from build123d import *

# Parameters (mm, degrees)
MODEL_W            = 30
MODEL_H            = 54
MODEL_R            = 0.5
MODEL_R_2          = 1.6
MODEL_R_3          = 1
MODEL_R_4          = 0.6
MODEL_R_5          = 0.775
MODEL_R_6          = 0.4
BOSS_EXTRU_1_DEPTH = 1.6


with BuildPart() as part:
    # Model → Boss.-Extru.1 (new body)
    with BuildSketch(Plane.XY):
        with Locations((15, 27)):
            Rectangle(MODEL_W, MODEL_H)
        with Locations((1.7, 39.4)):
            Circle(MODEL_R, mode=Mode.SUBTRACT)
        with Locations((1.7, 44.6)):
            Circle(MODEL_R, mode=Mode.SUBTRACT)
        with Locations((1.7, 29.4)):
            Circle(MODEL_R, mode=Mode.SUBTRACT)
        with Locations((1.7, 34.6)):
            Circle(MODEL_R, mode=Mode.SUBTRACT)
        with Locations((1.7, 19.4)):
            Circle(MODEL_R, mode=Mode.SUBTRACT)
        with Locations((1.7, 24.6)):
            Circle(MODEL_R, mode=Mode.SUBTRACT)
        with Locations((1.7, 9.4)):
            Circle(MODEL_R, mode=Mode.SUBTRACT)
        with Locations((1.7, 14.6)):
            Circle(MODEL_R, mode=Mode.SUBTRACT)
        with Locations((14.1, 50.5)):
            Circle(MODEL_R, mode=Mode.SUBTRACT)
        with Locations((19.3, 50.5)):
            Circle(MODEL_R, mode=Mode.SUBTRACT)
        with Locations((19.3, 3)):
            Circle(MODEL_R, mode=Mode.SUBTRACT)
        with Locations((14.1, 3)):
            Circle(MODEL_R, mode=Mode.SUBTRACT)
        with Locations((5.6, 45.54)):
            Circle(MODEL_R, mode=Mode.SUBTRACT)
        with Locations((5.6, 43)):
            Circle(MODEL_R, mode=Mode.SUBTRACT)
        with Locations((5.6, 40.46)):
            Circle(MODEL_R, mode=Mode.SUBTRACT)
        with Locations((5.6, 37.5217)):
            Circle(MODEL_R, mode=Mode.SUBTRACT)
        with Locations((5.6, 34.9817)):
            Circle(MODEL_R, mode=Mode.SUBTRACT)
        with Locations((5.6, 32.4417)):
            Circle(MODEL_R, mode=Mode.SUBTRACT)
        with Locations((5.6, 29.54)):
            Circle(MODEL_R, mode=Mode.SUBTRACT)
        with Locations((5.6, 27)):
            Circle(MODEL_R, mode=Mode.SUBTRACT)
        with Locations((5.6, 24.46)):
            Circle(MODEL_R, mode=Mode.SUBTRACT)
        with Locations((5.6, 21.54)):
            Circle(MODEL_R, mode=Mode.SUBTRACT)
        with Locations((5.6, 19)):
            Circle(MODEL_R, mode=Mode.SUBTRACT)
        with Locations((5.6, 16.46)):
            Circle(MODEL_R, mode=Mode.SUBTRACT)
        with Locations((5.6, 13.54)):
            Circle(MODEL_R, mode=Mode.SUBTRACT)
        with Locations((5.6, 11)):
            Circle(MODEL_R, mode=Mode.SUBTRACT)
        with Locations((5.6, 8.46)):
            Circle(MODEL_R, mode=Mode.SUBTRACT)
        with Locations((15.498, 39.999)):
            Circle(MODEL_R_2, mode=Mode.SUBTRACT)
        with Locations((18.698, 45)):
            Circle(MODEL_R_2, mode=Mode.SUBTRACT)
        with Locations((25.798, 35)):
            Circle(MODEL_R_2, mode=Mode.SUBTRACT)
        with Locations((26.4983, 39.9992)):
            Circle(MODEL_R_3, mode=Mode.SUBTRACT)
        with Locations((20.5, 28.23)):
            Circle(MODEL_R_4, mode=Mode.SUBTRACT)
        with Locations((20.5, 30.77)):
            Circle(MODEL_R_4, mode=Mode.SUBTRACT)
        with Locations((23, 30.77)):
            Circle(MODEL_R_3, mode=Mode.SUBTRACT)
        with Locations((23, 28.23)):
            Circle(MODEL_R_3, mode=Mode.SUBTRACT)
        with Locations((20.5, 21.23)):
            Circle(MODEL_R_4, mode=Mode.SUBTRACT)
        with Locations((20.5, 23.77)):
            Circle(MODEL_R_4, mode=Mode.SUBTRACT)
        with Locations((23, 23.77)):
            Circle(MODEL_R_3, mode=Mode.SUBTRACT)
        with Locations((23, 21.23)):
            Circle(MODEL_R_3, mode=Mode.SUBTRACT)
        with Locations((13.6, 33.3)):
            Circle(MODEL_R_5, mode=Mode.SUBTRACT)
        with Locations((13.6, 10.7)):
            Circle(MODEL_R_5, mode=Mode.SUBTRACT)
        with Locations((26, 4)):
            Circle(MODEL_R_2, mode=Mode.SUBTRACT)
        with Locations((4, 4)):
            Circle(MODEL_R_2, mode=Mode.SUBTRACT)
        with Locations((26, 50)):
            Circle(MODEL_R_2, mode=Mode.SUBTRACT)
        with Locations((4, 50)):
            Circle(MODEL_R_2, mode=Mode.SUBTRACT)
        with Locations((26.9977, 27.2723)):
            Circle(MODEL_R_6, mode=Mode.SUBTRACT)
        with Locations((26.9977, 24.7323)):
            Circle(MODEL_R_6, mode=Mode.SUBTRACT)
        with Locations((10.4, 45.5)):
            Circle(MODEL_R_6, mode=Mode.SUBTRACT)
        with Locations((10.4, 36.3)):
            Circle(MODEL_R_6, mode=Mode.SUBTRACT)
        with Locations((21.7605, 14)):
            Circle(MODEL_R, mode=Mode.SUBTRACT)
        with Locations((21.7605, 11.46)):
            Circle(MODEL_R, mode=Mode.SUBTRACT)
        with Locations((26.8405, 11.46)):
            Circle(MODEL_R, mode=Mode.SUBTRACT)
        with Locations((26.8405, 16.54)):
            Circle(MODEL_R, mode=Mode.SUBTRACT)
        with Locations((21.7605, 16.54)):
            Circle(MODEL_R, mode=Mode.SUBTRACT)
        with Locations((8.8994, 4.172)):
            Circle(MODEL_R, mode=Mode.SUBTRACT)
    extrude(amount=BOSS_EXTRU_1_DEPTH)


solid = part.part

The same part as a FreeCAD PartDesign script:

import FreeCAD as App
import Part
import Sketcher

V = App.Vector


def add_polygon(sketch, points):
    """Adds a closed chain of lines whose ends are joined by coincident constraints."""
    first, n = sketch.GeometryCount, len(points)
    for a, b in zip(points, points[1:] + points[:1]):
        sketch.addGeometry(Part.LineSegment(App.Vector(*a, 0), App.Vector(*b, 0)), False)
    for i in range(n):
        sketch.addConstraint(Sketcher.Constraint("Coincident", first + i, 2, first + (i + 1) % n, 1))

doc = App.newDocument("Part")
params = doc.addObject("Spreadsheet::Sheet", "Params")
for row, (alias, value) in enumerate([
    ("sketch1_diameter", "1 mm"),
    ("sketch1_diameter2", "2 mm"),
    ("sketch1_diameter3", "3.2 mm"),
    ("sketch1_diameter4", "1.2 mm"),
    ("sketch1_diameter5", "0.8 mm"),
    ("pad1_length", "1.6 mm"),
], start=1):
    params.set(f"A{row}", alias)
    params.set(f"B{row}", "=" + value)
    params.setAlias(f"B{row}", alias)

body = doc.addObject("PartDesign::Body", "Body")

sketch1 = body.newObject("Sketcher::SketchObject", "Sketch")
sketch1.AttachmentSupport = (doc.getObject("XY_Plane"), [""])
sketch1.MapMode = "FlatFace"
add_polygon(sketch1, [(0, 54), (0, 0), (30, 0), (30, 54)])
sketch1.addGeometry(Part.Circle(V(4, 4, 0), V(0, 0, 1), 1.6), False)
sketch1.addGeometry(Part.Circle(V(5.6, 8.46, 0), V(0, 0, 1), 0.5), False)
sketch1.addGeometry(Part.Circle(V(1.7, 9.4, 0), V(0, 0, 1), 0.5), False)
sketch1.addGeometry(Part.Circle(V(1.7, 14.6, 0), V(0, 0, 1), 0.5), False)
sketch1.addGeometry(Part.Circle(V(5.6, 11, 0), V(0, 0, 1), 0.5), False)
sketch1.addGeometry(Part.Circle(V(5.6, 13.54, 0), V(0, 0, 1), 0.5), False)
sketch1.addGeometry(Part.Circle(V(8.9, 4.17, 0), V(0, 0, 1), 0.5), False)
sketch1.addGeometry(Part.Circle(V(14.1, 3, 0), V(0, 0, 1), 0.5), False)
sketch1.addGeometry(Part.Circle(V(13.6, 10.7, 0), V(0, 0, 1), 0.78), False)
sketch1.addGeometry(Part.Circle(V(1.7, 19.4, 0), V(0, 0, 1), 0.5), False)
sketch1.addGeometry(Part.Circle(V(5.6, 16.46, 0), V(0, 0, 1), 0.5), False)
sketch1.addGeometry(Part.Circle(V(5.6, 19, 0), V(0, 0, 1), 0.5), False)
sketch1.addGeometry(Part.Circle(V(1.7, 24.6, 0), V(0, 0, 1), 0.5), False)
sketch1.addGeometry(Part.Circle(V(5.6, 21.54, 0), V(0, 0, 1), 0.5), False)
sketch1.addGeometry(Part.Circle(V(5.6, 24.46, 0), V(0, 0, 1), 0.5), False)
sketch1.addGeometry(Part.Circle(V(19.3, 3, 0), V(0, 0, 1), 0.5), False)
sketch1.addGeometry(Part.Circle(V(26, 4, 0), V(0, 0, 1), 1.6), False)
sketch1.addGeometry(Part.Circle(V(21.76, 11.46, 0), V(0, 0, 1), 0.5), False)
sketch1.addGeometry(Part.Circle(V(21.76, 14, 0), V(0, 0, 1), 0.5), False)
sketch1.addGeometry(Part.Circle(V(26.84, 11.46, 0), V(0, 0, 1), 0.5), False)
sketch1.addGeometry(Part.Circle(V(20.5, 21.23, 0), V(0, 0, 1), 0.6), False)
sketch1.addGeometry(Part.Circle(V(20.5, 23.77, 0), V(0, 0, 1), 0.6), False)
sketch1.addGeometry(Part.Circle(V(21.76, 16.54, 0), V(0, 0, 1), 0.5), False)
sketch1.addGeometry(Part.Circle(V(26.84, 16.54, 0), V(0, 0, 1), 0.5), False)
sketch1.addGeometry(Part.Circle(V(23, 21.23, 0), V(0, 0, 1), 1), False)
sketch1.addGeometry(Part.Circle(V(23, 23.77, 0), V(0, 0, 1), 1), False)
sketch1.addGeometry(Part.Circle(V(27, 24.73, 0), V(0, 0, 1), 0.4), False)
sketch1.addGeometry(Part.Circle(V(1.7, 29.4, 0), V(0, 0, 1), 0.5), False)
sketch1.addGeometry(Part.Circle(V(5.6, 27, 0), V(0, 0, 1), 0.5), False)
sketch1.addGeometry(Part.Circle(V(5.6, 29.54, 0), V(0, 0, 1), 0.5), False)
sketch1.addGeometry(Part.Circle(V(5.6, 32.44, 0), V(0, 0, 1), 0.5), False)
sketch1.addGeometry(Part.Circle(V(1.7, 34.6, 0), V(0, 0, 1), 0.5), False)
sketch1.addGeometry(Part.Circle(V(5.6, 34.98, 0), V(0, 0, 1), 0.5), False)
sketch1.addGeometry(Part.Circle(V(5.6, 37.52, 0), V(0, 0, 1), 0.5), False)
sketch1.addGeometry(Part.Circle(V(10.4, 36.3, 0), V(0, 0, 1), 0.4), False)
sketch1.addGeometry(Part.Circle(V(13.6, 33.3, 0), V(0, 0, 1), 0.78), False)
sketch1.addGeometry(Part.Circle(V(1.7, 39.4, 0), V(0, 0, 1), 0.5), False)
sketch1.addGeometry(Part.Circle(V(1.7, 44.6, 0), V(0, 0, 1), 0.5), False)
sketch1.addGeometry(Part.Circle(V(5.6, 40.46, 0), V(0, 0, 1), 0.5), False)
sketch1.addGeometry(Part.Circle(V(5.6, 43, 0), V(0, 0, 1), 0.5), False)
sketch1.addGeometry(Part.Circle(V(4, 50, 0), V(0, 0, 1), 1.6), False)
sketch1.addGeometry(Part.Circle(V(5.6, 45.54, 0), V(0, 0, 1), 0.5), False)
sketch1.addGeometry(Part.Circle(V(10.4, 45.5, 0), V(0, 0, 1), 0.4), False)
sketch1.addGeometry(Part.Circle(V(14.1, 50.5, 0), V(0, 0, 1), 0.5), False)
sketch1.addGeometry(Part.Circle(V(20.5, 28.23, 0), V(0, 0, 1), 0.6), False)
sketch1.addGeometry(Part.Circle(V(20.5, 30.77, 0), V(0, 0, 1), 0.6), False)
sketch1.addGeometry(Part.Circle(V(23, 28.23, 0), V(0, 0, 1), 1), False)
sketch1.addGeometry(Part.Circle(V(23, 30.77, 0), V(0, 0, 1), 1), False)
sketch1.addGeometry(Part.Circle(V(27, 27.27, 0), V(0, 0, 1), 0.4), False)
sketch1.addGeometry(Part.Circle(V(25.8, 35, 0), V(0, 0, 1), 1.6), False)
sketch1.addGeometry(Part.Circle(V(15.5, 40, 0), V(0, 0, 1), 1.6), False)
sketch1.addGeometry(Part.Circle(V(18.7, 45, 0), V(0, 0, 1), 1.6), False)
sketch1.addGeometry(Part.Circle(V(19.3, 50.5, 0), V(0, 0, 1), 0.5), False)
sketch1.addGeometry(Part.Circle(V(26.5, 40, 0), V(0, 0, 1), 1), False)
sketch1.addGeometry(Part.Circle(V(26, 50, 0), V(0, 0, 1), 1.6), False)
sketch1.addConstraint(Sketcher.Constraint("Vertical", 0))
sketch1.addConstraint(Sketcher.Constraint("Horizontal", 1))
sketch1.addConstraint(Sketcher.Constraint("Vertical", 2))
sketch1.addConstraint(Sketcher.Constraint("Horizontal", 3))
sketch1.addConstraint(Sketcher.Constraint("Coincident", 0, 2, -1, 1))
sketch1.addConstraint(Sketcher.Constraint("Equal", 5, 6))
sketch1.addConstraint(Sketcher.Constraint("Equal", 6, 7))
sketch1.addConstraint(Sketcher.Constraint("Equal", 7, 8))
sketch1.addConstraint(Sketcher.Constraint("Equal", 8, 9))
sketch1.addConstraint(Sketcher.Constraint("Equal", 9, 10))
sketch1.addConstraint(Sketcher.Constraint("Equal", 10, 11))
sketch1.addConstraint(Sketcher.Constraint("Equal", 11, 13))
sketch1.addConstraint(Sketcher.Constraint("Equal", 13, 14))
sketch1.addConstraint(Sketcher.Constraint("Equal", 14, 15))
sketch1.addConstraint(Sketcher.Constraint("Equal", 15, 16))
sketch1.addConstraint(Sketcher.Constraint("Equal", 16, 17))
sketch1.addConstraint(Sketcher.Constraint("Equal", 17, 18))
sketch1.addConstraint(Sketcher.Constraint("Equal", 18, 19))
sketch1.addConstraint(Sketcher.Constraint("Equal", 4, 20))
sketch1.addConstraint(Sketcher.Constraint("Equal", 19, 21))
sketch1.addConstraint(Sketcher.Constraint("Equal", 21, 22))
sketch1.addConstraint(Sketcher.Constraint("Equal", 22, 23))
sketch1.addConstraint(Sketcher.Constraint("Equal", 24, 25))
sketch1.addConstraint(Sketcher.Constraint("Equal", 23, 26))
sketch1.addConstraint(Sketcher.Constraint("Equal", 26, 27))
sketch1.addConstraint(Sketcher.Constraint("Equal", 28, 29))
sketch1.addConstraint(Sketcher.Constraint("Equal", 27, 31))
sketch1.addConstraint(Sketcher.Constraint("Equal", 31, 32))
sketch1.addConstraint(Sketcher.Constraint("Equal", 32, 33))
sketch1.addConstraint(Sketcher.Constraint("Equal", 33, 34))
sketch1.addConstraint(Sketcher.Constraint("Equal", 34, 35))
sketch1.addConstraint(Sketcher.Constraint("Equal", 35, 36))
sketch1.addConstraint(Sketcher.Constraint("Equal", 36, 37))
sketch1.addConstraint(Sketcher.Constraint("Equal", 30, 38))
sketch1.addConstraint(Sketcher.Constraint("Equal", 12, 39))
sketch1.addConstraint(Sketcher.Constraint("Equal", 37, 40))
sketch1.addConstraint(Sketcher.Constraint("Equal", 40, 41))
sketch1.addConstraint(Sketcher.Constraint("Equal", 41, 42))
sketch1.addConstraint(Sketcher.Constraint("Equal", 42, 43))
sketch1.addConstraint(Sketcher.Constraint("Equal", 20, 44))
sketch1.addConstraint(Sketcher.Constraint("Equal", 43, 45))
sketch1.addConstraint(Sketcher.Constraint("Equal", 38, 46))
sketch1.addConstraint(Sketcher.Constraint("Equal", 45, 47))
sketch1.addConstraint(Sketcher.Constraint("Equal", 25, 48))
sketch1.addConstraint(Sketcher.Constraint("Equal", 48, 49))
sketch1.addConstraint(Sketcher.Constraint("Equal", 29, 50))
sketch1.addConstraint(Sketcher.Constraint("Equal", 50, 51))
sketch1.addConstraint(Sketcher.Constraint("Equal", 46, 52))
sketch1.addConstraint(Sketcher.Constraint("Equal", 44, 53))
sketch1.addConstraint(Sketcher.Constraint("Equal", 53, 54))
sketch1.addConstraint(Sketcher.Constraint("Equal", 54, 55))
sketch1.addConstraint(Sketcher.Constraint("Equal", 47, 56))
sketch1.addConstraint(Sketcher.Constraint("Equal", 51, 57))
sketch1.addConstraint(Sketcher.Constraint("Equal", 55, 58))
sketch1.addConstraint(Sketcher.Constraint("Horizontal", 11, 3, 19, 3))
sketch1.addConstraint(Sketcher.Constraint("Horizontal", 4, 3, 20, 3))
sketch1.addConstraint(Sketcher.Constraint("Horizontal", 21, 3, 23, 3))
sketch1.addConstraint(Sketcher.Constraint("Horizontal", 26, 3, 27, 3))
sketch1.addConstraint(Sketcher.Constraint("Horizontal", 24, 3, 28, 3))
sketch1.addConstraint(Sketcher.Constraint("Horizontal", 25, 3, 29, 3))
sketch1.addConstraint(Sketcher.Constraint("Horizontal", 48, 3, 50, 3))
sketch1.addConstraint(Sketcher.Constraint("Horizontal", 49, 3, 51, 3))
sketch1.addConstraint(Sketcher.Constraint("Horizontal", 47, 3, 56, 3))
sketch1.addConstraint(Sketcher.Constraint("Horizontal", 44, 3, 58, 3))
sketch1.addConstraint(Sketcher.Constraint("Vertical", 6, 3, 7, 3))
sketch1.addConstraint(Sketcher.Constraint("Vertical", 5, 3, 8, 3))
sketch1.addConstraint(Sketcher.Constraint("Vertical", 8, 3, 9, 3))
sketch1.addConstraint(Sketcher.Constraint("Vertical", 7, 3, 13, 3))
sketch1.addConstraint(Sketcher.Constraint("Vertical", 9, 3, 14, 3))
sketch1.addConstraint(Sketcher.Constraint("Vertical", 14, 3, 15, 3))
sketch1.addConstraint(Sketcher.Constraint("Vertical", 13, 3, 16, 3))
sketch1.addConstraint(Sketcher.Constraint("Vertical", 15, 3, 17, 3))
sketch1.addConstraint(Sketcher.Constraint("Vertical", 17, 3, 18, 3))
sketch1.addConstraint(Sketcher.Constraint("Vertical", 21, 3, 22, 3))
sketch1.addConstraint(Sketcher.Constraint("Vertical", 24, 3, 25, 3))
sketch1.addConstraint(Sketcher.Constraint("Vertical", 22, 3, 26, 3))
sketch1.addConstraint(Sketcher.Constraint("Vertical", 23, 3, 27, 3))
sketch1.addConstraint(Sketcher.Constraint("Vertical", 28, 3, 29, 3))
sketch1.addConstraint(Sketcher.Constraint("Vertical", 16, 3, 31, 3))
sketch1.addConstraint(Sketcher.Constraint("Vertical", 18, 3, 32, 3))
sketch1.addConstraint(Sketcher.Constraint("Vertical", 32, 3, 33, 3))
sketch1.addConstraint(Sketcher.Constraint("Vertical", 33, 3, 34, 3))
sketch1.addConstraint(Sketcher.Constraint("Vertical", 31, 3, 35, 3))
sketch1.addConstraint(Sketcher.Constraint("Vertical", 34, 3, 36, 3))
sketch1.addConstraint(Sketcher.Constraint("Vertical", 36, 3, 37, 3))
sketch1.addConstraint(Sketcher.Constraint("Vertical", 12, 3, 39, 3))
sketch1.addConstraint(Sketcher.Constraint("Vertical", 35, 3, 40, 3))
sketch1.addConstraint(Sketcher.Constraint("Vertical", 40, 3, 41, 3))
sketch1.addConstraint(Sketcher.Constraint("Vertical", 37, 3, 42, 3))
sketch1.addConstraint(Sketcher.Constraint("Vertical", 42, 3, 43, 3))
sketch1.addConstraint(Sketcher.Constraint("Vertical", 4, 3, 44, 3))
sketch1.addConstraint(Sketcher.Constraint("Vertical", 43, 3, 45, 3))
sketch1.addConstraint(Sketcher.Constraint("Vertical", 38, 3, 46, 3))
sketch1.addConstraint(Sketcher.Constraint("Vertical", 11, 3, 47, 3))
sketch1.addConstraint(Sketcher.Constraint("Vertical", 25, 3, 48, 3))
sketch1.addConstraint(Sketcher.Constraint("Vertical", 48, 3, 49, 3))
sketch1.addConstraint(Sketcher.Constraint("Vertical", 29, 3, 50, 3))
sketch1.addConstraint(Sketcher.Constraint("Vertical", 50, 3, 51, 3))
sketch1.addConstraint(Sketcher.Constraint("Vertical", 30, 3, 52, 3))
sketch1.addConstraint(Sketcher.Constraint("Vertical", 19, 3, 56, 3))
sketch1.addConstraint(Sketcher.Constraint("Vertical", 20, 3, 58, 3))
sketch1.addConstraint(Sketcher.Constraint("Diameter", 5, 1.0))
sketch1.addConstraint(Sketcher.Constraint("Diameter", 28, 2.0))
sketch1.addConstraint(Sketcher.Constraint("Diameter", 4, 3.2))
sketch1.addConstraint(Sketcher.Constraint("Diameter", 24, 1.2))
sketch1.addConstraint(Sketcher.Constraint("Diameter", 30, 0.8))
sketch1.addConstraint(Sketcher.Constraint("Diameter", 12, 1.55))
sketch1.addConstraint(Sketcher.Constraint("DistanceX", 1, 1, 1, 2, 30.0))
sketch1.addConstraint(Sketcher.Constraint("DistanceY", 0, 2, 0, 1, 54.0))
sketch1.addConstraint(Sketcher.Constraint("DistanceX", -1, 1, 4, 3, 4.0))
sketch1.addConstraint(Sketcher.Constraint("DistanceY", -1, 1, 4, 3, 4.0))
sketch1.addConstraint(Sketcher.Constraint("DistanceY", -1, 1, 8, 3, 11.0))
sketch1.addConstraint(Sketcher.Constraint("DistanceY", -1, 1, 11, 3, 3.0))
sketch1.addConstraint(Sketcher.Constraint("DistanceY", -1, 1, 15, 3, 19.0))
sketch1.addConstraint(Sketcher.Constraint("DistanceX", -1, 1, 20, 3, 26.0))
sketch1.addConstraint(Sketcher.Constraint("DistanceY", -1, 1, 22, 3, 14.0))
sketch1.addConstraint(Sketcher.Constraint("DistanceX", -1, 1, 28, 3, 23.0))
sketch1.addConstraint(Sketcher.Constraint("DistanceY", -1, 1, 32, 3, 27.0))
sketch1.addConstraint(Sketcher.Constraint("DistanceY", -1, 1, 43, 3, 43.0))
sketch1.addConstraint(Sketcher.Constraint("DistanceY", -1, 1, 44, 3, 50.0))
sketch1.addConstraint(Sketcher.Constraint("DistanceY", -1, 1, 53, 3, 35.0))
sketch1.addConstraint(Sketcher.Constraint("DistanceY", -1, 1, 55, 3, 45.0))
sketch1.addConstraint(Sketcher.Constraint("DistanceX", 8, 3, 12, 3, 8.0))
sketch1.addConstraint(Sketcher.Constraint("DistanceY", 6, 3, 13, 3, 10.0))
sketch1.addConstraint(Sketcher.Constraint("DistanceY", 5, 3, 14, 3, 8.0))
sketch1.addConstraint(Sketcher.Constraint("DistanceY", 7, 3, 16, 3, 10.0))
sketch1.addConstraint(Sketcher.Constraint("DistanceY", 14, 3, 18, 3, 8.0))
sketch1.addConstraint(Sketcher.Constraint("DistanceY", 13, 3, 31, 3, 10.0))
sketch1.addConstraint(Sketcher.Constraint("DistanceY", 17, 3, 33, 3, 8.0))
sketch1.addConstraint(Sketcher.Constraint("DistanceY", 16, 3, 35, 3, 10.0))
sketch1.addConstraint(Sketcher.Constraint("DistanceY", 39, 3, 38, 3, 3.0))
sketch1.addConstraint(Sketcher.Constraint("DistanceY", 35, 3, 41, 3, 10.0))
sketch1.addConstraint(Sketcher.Constraint("DistanceY", 46, 3, 47, 3, 5.0))
sketch1.addConstraint(Sketcher.Constraint("DistanceY", 24, 3, 48, 3, 7.0))
sketch1.addConstraint(Sketcher.Constraint("DistanceY", 25, 3, 49, 3, 7.0))
sketch1.addConstraint(Sketcher.Constraint("DistanceX", -1, 1, 5, 3, 5.6))
sketch1.addConstraint(Sketcher.Constraint("DistanceX", -1, 1, 6, 3, 1.7))
sketch1.addConstraint(Sketcher.Constraint("DistanceY", -1, 1, 6, 3, 9.4))
sketch1.addConstraint(Sketcher.Constraint("DistanceY", -1, 1, 7, 3, 14.6))
sketch1.addConstraint(Sketcher.Constraint("DistanceX", -1, 1, 11, 3, 14.1))
sketch1.addConstraint(Sketcher.Constraint("DistanceY", -1, 1, 12, 3, 10.7))
sketch1.addConstraint(Sketcher.Constraint("DistanceX", -1, 1, 19, 3, 19.3))
sketch1.addConstraint(Sketcher.Constraint("DistanceX", -1, 1, 24, 3, 20.5))
sketch1.addConstraint(Sketcher.Constraint("DistanceX", -1, 1, 38, 3, 10.4))
sketch1.addConstraint(Sketcher.Constraint("DistanceY", -1, 1, 38, 3, 36.3))
sketch1.addConstraint(Sketcher.Constraint("DistanceY", -1, 1, 40, 3, 39.4))
sketch1.addConstraint(Sketcher.Constraint("DistanceY", -1, 1, 46, 3, 45.5))
sketch1.addConstraint(Sketcher.Constraint("DistanceX", 54, 3, 55, 3, 3.2))
sketch1.addConstraint(Sketcher.Constraint("DistanceX", 55, 3, 53, 3, 7.1))
sketch1.addConstraint(Sketcher.Constraint("DistanceY", -1, 1, 5, 3, 8.46))
sketch1.addConstraint(Sketcher.Constraint("DistanceY", -1, 1, 9, 3, 13.54))
sketch1.addConstraint(Sketcher.Constraint("DistanceY", -1, 1, 17, 3, 21.54))
sketch1.addConstraint(Sketcher.Constraint("DistanceY", -1, 1, 21, 3, 11.46))
sketch1.addConstraint(Sketcher.Constraint("DistanceY", -1, 1, 24, 3, 21.23))
sketch1.addConstraint(Sketcher.Constraint("DistanceY", -1, 1, 25, 3, 23.77))
sketch1.addConstraint(Sketcher.Constraint("DistanceY", -1, 1, 26, 3, 16.54))
sketch1.addConstraint(Sketcher.Constraint("DistanceY", -1, 1, 42, 3, 40.46))
sketch1.addConstraint(Sketcher.Constraint("DistanceY", -1, 1, 45, 3, 45.54))
sketch1.addConstraint(Sketcher.Constraint("DistanceX", 21, 3, 23, 3, 5.08))
sketch1.addConstraint(Sketcher.Constraint("DistanceY", 34, 3, 36, 3, 2.54))
sketch1.addConstraint(Sketcher.Constraint("DistanceY", 36, 3, 37, 3, 2.54))
sketch1.addConstraint(Sketcher.Constraint("DistanceY", 30, 3, 52, 3, 2.54))
sketch1.addConstraint(Sketcher.Constraint("DistanceY", -1, 1, 10, 3, 4.172))
sketch1.addConstraint(Sketcher.Constraint("DistanceX", -1, 1, 53, 3, 25.798))
sketch1.addConstraint(Sketcher.Constraint("DistanceY", -1, 1, 54, 3, 39.999))
sketch1.addConstraint(Sketcher.Constraint("DistanceX", -1, 1, 10, 3, 8.8994))
sketch1.addConstraint(Sketcher.Constraint("DistanceX", -1, 1, 21, 3, 21.7605))
sketch1.addConstraint(Sketcher.Constraint("DistanceX", -1, 1, 30, 3, 26.9977))
sketch1.addConstraint(Sketcher.Constraint("DistanceY", -1, 1, 30, 3, 24.7323))
sketch1.addConstraint(Sketcher.Constraint("DistanceY", -1, 1, 34, 3, 32.4417))
sketch1.addConstraint(Sketcher.Constraint("DistanceX", -1, 1, 57, 3, 26.4983))
sketch1.addConstraint(Sketcher.Constraint("DistanceY", -1, 1, 57, 3, 39.9992))
sketch1.setExpression("Constraints[105]", "Params.sketch1_diameter")
sketch1.setExpression("Constraints[106]", "Params.sketch1_diameter2")
sketch1.setExpression("Constraints[107]", "Params.sketch1_diameter3")
sketch1.setExpression("Constraints[108]", "Params.sketch1_diameter4")
sketch1.setExpression("Constraints[109]", "Params.sketch1_diameter5")
pad1 = body.newObject("PartDesign::Pad", "Pad")
pad1.Profile = sketch1
pad1.setExpression("Length", "Params.pad1_length")

doc.recompute()
